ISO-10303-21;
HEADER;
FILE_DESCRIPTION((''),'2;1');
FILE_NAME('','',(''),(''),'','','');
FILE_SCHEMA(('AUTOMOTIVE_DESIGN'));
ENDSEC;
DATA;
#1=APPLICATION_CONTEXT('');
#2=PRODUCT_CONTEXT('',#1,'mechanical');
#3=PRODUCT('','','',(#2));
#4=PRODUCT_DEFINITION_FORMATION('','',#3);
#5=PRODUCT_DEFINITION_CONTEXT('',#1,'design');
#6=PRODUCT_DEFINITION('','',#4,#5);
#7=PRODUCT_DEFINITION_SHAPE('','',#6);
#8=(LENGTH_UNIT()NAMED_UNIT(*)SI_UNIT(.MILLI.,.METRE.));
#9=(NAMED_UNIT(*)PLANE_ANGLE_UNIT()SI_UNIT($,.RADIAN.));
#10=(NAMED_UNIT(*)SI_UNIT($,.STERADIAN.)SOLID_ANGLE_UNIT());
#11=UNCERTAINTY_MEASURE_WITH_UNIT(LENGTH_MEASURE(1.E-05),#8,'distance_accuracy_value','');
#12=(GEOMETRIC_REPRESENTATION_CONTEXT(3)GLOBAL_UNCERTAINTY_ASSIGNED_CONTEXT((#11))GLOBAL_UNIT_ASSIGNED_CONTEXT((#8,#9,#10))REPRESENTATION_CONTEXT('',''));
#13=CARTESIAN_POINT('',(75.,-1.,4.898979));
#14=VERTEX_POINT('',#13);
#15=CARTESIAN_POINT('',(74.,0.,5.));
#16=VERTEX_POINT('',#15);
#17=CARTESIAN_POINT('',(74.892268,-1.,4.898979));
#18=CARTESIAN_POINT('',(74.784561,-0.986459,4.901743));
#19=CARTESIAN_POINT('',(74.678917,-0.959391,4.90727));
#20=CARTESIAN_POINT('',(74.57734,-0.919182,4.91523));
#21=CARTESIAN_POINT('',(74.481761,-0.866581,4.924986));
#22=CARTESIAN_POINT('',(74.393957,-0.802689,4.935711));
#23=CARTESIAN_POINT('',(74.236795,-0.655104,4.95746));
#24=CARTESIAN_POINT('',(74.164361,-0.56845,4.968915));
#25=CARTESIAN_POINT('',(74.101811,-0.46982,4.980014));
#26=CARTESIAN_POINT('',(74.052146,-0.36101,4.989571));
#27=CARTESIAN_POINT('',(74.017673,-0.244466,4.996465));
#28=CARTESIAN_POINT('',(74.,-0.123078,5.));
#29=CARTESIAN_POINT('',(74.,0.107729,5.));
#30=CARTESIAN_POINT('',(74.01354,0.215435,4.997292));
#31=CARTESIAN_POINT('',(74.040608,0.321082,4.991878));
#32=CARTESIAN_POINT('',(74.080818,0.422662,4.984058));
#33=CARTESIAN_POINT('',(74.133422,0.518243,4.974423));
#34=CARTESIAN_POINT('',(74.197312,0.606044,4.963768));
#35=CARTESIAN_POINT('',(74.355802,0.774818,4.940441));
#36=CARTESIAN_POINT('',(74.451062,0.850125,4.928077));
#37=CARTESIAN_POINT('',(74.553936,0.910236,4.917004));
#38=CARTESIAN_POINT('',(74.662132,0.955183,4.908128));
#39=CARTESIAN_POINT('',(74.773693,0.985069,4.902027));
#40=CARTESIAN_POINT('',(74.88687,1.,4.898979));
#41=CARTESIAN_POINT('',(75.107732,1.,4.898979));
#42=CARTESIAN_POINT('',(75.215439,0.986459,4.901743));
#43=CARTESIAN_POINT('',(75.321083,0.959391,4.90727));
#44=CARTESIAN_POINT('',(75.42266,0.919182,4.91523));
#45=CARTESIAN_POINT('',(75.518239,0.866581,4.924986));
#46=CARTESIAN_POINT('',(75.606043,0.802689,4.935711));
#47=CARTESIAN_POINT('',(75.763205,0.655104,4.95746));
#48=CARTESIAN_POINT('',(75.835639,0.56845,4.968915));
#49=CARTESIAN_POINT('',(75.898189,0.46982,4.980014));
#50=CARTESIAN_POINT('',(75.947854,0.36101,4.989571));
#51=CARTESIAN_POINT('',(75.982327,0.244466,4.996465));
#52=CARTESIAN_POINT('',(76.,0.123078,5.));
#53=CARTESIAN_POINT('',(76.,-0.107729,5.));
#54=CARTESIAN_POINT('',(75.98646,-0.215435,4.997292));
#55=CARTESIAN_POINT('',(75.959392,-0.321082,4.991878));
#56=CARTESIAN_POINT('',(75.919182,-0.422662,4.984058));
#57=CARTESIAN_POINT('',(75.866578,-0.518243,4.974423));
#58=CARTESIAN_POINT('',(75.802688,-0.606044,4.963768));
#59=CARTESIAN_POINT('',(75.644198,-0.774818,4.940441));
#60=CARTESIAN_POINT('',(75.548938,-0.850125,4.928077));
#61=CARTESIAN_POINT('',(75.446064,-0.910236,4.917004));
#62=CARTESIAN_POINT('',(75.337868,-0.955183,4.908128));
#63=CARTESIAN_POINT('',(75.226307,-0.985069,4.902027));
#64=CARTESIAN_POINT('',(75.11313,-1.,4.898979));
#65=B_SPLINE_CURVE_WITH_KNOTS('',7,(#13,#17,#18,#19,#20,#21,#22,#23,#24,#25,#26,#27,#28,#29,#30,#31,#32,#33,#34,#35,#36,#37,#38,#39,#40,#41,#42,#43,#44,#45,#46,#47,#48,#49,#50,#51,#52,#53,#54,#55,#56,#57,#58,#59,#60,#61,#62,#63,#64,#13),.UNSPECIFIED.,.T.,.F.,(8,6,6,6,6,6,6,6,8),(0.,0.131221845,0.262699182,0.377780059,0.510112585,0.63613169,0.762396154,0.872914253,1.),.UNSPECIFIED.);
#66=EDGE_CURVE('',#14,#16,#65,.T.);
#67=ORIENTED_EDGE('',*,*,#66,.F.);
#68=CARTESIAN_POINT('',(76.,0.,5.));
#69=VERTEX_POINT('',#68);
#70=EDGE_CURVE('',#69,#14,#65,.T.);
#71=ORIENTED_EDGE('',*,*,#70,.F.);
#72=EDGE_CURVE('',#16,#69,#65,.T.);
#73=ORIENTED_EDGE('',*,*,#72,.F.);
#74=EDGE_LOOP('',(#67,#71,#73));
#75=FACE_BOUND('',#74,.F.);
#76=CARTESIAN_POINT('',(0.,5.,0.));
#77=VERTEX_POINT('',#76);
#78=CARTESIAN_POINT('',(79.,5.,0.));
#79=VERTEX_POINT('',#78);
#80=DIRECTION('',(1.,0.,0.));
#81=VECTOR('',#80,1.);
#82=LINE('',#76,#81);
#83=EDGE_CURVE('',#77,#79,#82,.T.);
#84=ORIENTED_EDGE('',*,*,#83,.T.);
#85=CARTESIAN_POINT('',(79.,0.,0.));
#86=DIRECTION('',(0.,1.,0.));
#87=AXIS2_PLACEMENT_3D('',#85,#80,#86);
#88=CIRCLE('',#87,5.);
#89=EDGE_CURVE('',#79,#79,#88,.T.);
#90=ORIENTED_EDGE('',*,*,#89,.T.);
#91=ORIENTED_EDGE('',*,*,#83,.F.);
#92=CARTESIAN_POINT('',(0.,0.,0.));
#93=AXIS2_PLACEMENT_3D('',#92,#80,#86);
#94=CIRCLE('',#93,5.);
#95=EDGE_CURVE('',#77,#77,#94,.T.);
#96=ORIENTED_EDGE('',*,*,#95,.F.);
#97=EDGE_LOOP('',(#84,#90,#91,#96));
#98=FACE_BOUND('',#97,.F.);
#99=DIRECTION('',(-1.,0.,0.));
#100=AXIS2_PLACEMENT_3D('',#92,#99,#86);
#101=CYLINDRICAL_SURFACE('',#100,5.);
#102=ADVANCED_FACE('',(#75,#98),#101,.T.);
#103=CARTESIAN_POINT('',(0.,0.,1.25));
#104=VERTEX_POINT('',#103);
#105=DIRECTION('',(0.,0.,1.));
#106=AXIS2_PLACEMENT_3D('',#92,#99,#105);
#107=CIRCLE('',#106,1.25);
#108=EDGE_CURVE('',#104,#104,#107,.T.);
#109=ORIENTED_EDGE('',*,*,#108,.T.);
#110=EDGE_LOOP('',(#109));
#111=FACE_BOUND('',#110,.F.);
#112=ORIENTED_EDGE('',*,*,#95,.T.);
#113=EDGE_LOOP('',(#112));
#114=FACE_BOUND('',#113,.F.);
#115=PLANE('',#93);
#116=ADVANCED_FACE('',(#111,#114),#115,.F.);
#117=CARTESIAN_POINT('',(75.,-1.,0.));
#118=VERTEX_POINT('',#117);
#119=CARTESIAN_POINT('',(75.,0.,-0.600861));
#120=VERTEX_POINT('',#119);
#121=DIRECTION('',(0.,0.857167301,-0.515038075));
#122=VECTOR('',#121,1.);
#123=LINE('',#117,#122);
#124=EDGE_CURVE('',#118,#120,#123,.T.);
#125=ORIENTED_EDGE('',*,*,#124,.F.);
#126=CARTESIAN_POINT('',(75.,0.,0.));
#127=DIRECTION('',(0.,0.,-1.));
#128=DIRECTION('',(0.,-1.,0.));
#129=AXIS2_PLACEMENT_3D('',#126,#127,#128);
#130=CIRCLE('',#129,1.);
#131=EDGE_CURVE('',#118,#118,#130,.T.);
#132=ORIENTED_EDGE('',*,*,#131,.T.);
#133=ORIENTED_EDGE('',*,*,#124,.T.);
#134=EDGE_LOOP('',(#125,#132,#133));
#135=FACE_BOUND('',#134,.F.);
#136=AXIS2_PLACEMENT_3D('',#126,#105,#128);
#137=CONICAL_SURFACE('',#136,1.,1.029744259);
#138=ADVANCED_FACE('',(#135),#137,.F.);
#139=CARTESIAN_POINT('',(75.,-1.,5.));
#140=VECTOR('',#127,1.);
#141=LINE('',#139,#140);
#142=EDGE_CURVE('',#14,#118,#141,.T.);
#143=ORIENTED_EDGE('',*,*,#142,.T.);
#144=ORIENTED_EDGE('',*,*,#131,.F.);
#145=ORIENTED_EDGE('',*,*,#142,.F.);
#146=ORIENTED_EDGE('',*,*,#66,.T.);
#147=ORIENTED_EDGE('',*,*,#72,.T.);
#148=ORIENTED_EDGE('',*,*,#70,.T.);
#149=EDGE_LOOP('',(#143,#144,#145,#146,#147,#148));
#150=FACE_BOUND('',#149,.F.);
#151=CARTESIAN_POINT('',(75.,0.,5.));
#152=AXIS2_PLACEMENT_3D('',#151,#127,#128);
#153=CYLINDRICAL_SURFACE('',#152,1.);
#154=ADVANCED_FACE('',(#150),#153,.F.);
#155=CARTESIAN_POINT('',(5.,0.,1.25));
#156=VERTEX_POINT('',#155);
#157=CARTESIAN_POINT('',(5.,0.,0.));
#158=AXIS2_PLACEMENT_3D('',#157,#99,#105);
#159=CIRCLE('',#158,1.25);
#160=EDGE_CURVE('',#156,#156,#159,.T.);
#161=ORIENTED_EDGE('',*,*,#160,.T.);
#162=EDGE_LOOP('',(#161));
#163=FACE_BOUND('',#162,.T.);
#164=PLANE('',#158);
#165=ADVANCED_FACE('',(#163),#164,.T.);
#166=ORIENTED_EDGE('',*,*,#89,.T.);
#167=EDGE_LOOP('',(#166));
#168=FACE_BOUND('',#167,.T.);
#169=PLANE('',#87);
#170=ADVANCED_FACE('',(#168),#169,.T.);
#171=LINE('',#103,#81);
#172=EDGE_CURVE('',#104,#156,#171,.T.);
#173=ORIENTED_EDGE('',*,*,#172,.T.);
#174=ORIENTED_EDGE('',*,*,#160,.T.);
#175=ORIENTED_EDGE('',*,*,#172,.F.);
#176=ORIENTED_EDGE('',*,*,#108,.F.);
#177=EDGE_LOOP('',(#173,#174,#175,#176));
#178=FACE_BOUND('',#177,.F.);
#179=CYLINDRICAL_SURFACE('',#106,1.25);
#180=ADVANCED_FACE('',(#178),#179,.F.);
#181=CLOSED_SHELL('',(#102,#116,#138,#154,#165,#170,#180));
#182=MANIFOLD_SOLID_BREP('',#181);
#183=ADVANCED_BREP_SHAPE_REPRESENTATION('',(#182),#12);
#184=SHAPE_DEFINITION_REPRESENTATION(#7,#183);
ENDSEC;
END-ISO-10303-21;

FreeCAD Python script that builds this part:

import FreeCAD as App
import Part
import Sketcher
Q = App.Units.Quantity

doc = App.newDocument("Part")
body = doc.addObject("PartDesign::Body", "Body")

# Sketch on YZ plane
sketch1 = body.newObject("Sketcher::SketchObject", "Sketch")
sketch1.AttachmentSupport = (doc.getObject("YZ_Plane"), [""])
sketch1.MapMode = "FlatFace"
sketch1.addGeometry(Part.Circle(App.Vector(0, 0, 0), App.Vector(0, 0, 1), 5), False)
sketch1.addConstraint(Sketcher.Constraint("Coincident", 0, 3, -1, 1))
sketch1.addConstraint(Sketcher.Constraint("Diameter", 0, Q("10 mm")))
pad1 = body.newObject("PartDesign::Pad", "Pad")
pad1.Profile = sketch1
pad1.Length = 79

# Sketch on YZ plane
sketch2 = body.newObject("Sketcher::SketchObject", "Sketch001")
sketch2.AttachmentSupport = (doc.getObject("YZ_Plane"), [""])
sketch2.MapMode = "FlatFace"
sketch2.addGeometry(Part.Circle(App.Vector(0, 0, 0), App.Vector(0, 0, 1), 1.2), False)
sketch2.addConstraint(Sketcher.Constraint("Coincident", 0, 3, -1, 1))
sketch2.addConstraint(Sketcher.Constraint("Diameter", 0, Q("2.5 mm")))
pocket1 = body.newObject("PartDesign::Pocket", "Pocket")
pocket1.Profile = sketch2
pocket1.Length = 5
pocket1.Reversed = True

# Sketch on XY plane
sketch3 = body.newObject("Sketcher::SketchObject", "Sketch002")
sketch3.AttachmentSupport = (doc.getObject("XY_Plane"), [""])
sketch3.MapMode = "FlatFace"
sketch3.AttachmentOffset = App.Placement(App.Vector(0, 0, 5), App.Rotation())
sketch3.addGeometry(Part.Circle(App.Vector(75, 0, 0), App.Vector(0, 0, 1), 1), False)
sketch3.addConstraint(Sketcher.Constraint("PointOnObject", 0, 3, -1))
sketch3.addConstraint(Sketcher.Constraint("Diameter", 0, Q("2 mm")))
sketch3.addConstraint(Sketcher.Constraint("DistanceX", -1, 1, 0, 3, Q("75 mm")))
doc.recompute()
hole = body.newObject("PartDesign::Hole", "Hole")
hole.Profile = sketch3
hole.ThreadType = "None"
hole.Diameter = 2
hole.DepthType = "Dimension"
hole.Depth = 5
hole.DrillPoint = "Angled"
hole.DrillPointAngle = 118

doc.recompute()
